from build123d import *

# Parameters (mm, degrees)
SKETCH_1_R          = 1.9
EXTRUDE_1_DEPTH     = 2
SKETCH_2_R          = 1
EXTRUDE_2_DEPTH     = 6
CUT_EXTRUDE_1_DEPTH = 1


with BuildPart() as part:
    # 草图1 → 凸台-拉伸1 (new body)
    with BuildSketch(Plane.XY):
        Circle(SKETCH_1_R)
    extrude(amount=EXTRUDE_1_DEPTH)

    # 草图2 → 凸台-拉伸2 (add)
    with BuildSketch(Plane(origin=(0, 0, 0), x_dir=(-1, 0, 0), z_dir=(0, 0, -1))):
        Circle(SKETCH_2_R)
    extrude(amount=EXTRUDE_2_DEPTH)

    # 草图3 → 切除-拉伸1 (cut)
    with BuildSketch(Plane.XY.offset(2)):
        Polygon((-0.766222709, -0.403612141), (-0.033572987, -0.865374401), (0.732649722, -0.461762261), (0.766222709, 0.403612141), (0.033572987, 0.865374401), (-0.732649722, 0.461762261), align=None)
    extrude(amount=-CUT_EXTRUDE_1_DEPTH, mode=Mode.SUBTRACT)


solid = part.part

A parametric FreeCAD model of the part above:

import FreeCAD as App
import Part
import Sketcher

doc = App.newDocument("Part")
body = doc.addObject("PartDesign::Body", "Body")

# Sketch on XY plane
sketch1 = body.newObject("Sketcher::SketchObject", "Sketch")
sketch1.AttachmentSupport = (doc.getObject("XY_Plane"), [""])
sketch1.MapMode = "FlatFace"
sketch1.addGeometry(Part.Circle(App.Vector(0, 0, 0), App.Vector(0, 0, 1), 1.9), False)
sketch1.addConstraint([
    Sketcher.Constraint("Coincident", 0, 3, -1, 1),
    Sketcher.Constraint("Diameter", 0, 3.8),
])
pad1 = body.newObject("PartDesign::Pad", "Pad")
pad1.Profile = sketch1
pad1.Length = 2

# Sketch on XY plane
sketch2 = body.newObject("Sketcher::SketchObject", "Sketch001")
sketch2.AttachmentSupport = (doc.getObject("XY_Plane"), [""])
sketch2.MapMode = "FlatFace"
sketch2.addGeometry(Part.Circle(App.Vector(0, 0, 0), App.Vector(0, 0, 1), 1), False)
sketch2.addConstraint([
    Sketcher.Constraint("Coincident", 0, 3, -1, 1),
    Sketcher.Constraint("Diameter", 0, 2.0),
])
pad2 = body.newObject("PartDesign::Pad", "Pad001")
pad2.Profile = sketch2
pad2.Length = 6
pad2.Reversed = True

# Sketch on XY plane
sketch3 = body.newObject("Sketcher::SketchObject", "Sketch002")
sketch3.AttachmentSupport = (doc.getObject("XY_Plane"), [""])
sketch3.MapMode = "FlatFace"
sketch3.AttachmentOffset = App.Placement(App.Vector(0, 0, 2), App.Rotation())
sketch3.addGeometry([
    Part.LineSegment(App.Vector(-0.8, -0.4, 0), App.Vector(0, -0.9, 0)),  # 0
    Part.LineSegment(App.Vector(0, -0.9, 0), App.Vector(0.7, -0.5, 0)),  # 1
    Part.LineSegment(App.Vector(0.7, -0.5, 0), App.Vector(0.8, 0.4, 0)),  # 2
    Part.LineSegment(App.Vector(0.8, 0.4, 0), App.Vector(0, 0.9, 0)),  # 3
    Part.LineSegment(App.Vector(0, 0.9, 0), App.Vector(-0.7, 0.5, 0)),  # 4
    Part.LineSegment(App.Vector(-0.7, 0.5, 0), App.Vector(-0.8, -0.4, 0)),  # 5
], False)
sketch3.addConstraint([
    Sketcher.Constraint("Coincident", 0, 2, 1, 1),
    Sketcher.Constraint("Coincident", 1, 2, 2, 1),
    Sketcher.Constraint("Coincident", 2, 2, 3, 1),
    Sketcher.Constraint("Coincident", 3, 2, 4, 1),
    Sketcher.Constraint("Coincident", 4, 2, 5, 1),
    Sketcher.Constraint("Coincident", 5, 2, 0, 1),
    Sketcher.Constraint("Symmetric", 0, 2, 3, 2, -1, 1),
    Sketcher.Constraint("Symmetric", 1, 2, 4, 2, -1, 1),
    Sketcher.Constraint("Symmetric", 2, 2, 5, 2, -1, 1),
    Sketcher.Constraint("Equal", 0, 1),
    Sketcher.Constraint("Equal", 1, 2),
    Sketcher.Constraint("DistanceX", 4, 2, 1, 2, 1.465299),
    Sketcher.Constraint("DistanceX", 3, 2, 2, 2, 0.73265),
    Sketcher.Constraint("DistanceY", 0, 2, 3, 2, 1.730749),
    Sketcher.Constraint("DistanceY", 2, 2, 4, 2, 0.05815),
])
pocket1 = body.newObject("PartDesign::Pocket", "Pocket")
pocket1.Profile = sketch3
pocket1.Length = 1

doc.recompute()
